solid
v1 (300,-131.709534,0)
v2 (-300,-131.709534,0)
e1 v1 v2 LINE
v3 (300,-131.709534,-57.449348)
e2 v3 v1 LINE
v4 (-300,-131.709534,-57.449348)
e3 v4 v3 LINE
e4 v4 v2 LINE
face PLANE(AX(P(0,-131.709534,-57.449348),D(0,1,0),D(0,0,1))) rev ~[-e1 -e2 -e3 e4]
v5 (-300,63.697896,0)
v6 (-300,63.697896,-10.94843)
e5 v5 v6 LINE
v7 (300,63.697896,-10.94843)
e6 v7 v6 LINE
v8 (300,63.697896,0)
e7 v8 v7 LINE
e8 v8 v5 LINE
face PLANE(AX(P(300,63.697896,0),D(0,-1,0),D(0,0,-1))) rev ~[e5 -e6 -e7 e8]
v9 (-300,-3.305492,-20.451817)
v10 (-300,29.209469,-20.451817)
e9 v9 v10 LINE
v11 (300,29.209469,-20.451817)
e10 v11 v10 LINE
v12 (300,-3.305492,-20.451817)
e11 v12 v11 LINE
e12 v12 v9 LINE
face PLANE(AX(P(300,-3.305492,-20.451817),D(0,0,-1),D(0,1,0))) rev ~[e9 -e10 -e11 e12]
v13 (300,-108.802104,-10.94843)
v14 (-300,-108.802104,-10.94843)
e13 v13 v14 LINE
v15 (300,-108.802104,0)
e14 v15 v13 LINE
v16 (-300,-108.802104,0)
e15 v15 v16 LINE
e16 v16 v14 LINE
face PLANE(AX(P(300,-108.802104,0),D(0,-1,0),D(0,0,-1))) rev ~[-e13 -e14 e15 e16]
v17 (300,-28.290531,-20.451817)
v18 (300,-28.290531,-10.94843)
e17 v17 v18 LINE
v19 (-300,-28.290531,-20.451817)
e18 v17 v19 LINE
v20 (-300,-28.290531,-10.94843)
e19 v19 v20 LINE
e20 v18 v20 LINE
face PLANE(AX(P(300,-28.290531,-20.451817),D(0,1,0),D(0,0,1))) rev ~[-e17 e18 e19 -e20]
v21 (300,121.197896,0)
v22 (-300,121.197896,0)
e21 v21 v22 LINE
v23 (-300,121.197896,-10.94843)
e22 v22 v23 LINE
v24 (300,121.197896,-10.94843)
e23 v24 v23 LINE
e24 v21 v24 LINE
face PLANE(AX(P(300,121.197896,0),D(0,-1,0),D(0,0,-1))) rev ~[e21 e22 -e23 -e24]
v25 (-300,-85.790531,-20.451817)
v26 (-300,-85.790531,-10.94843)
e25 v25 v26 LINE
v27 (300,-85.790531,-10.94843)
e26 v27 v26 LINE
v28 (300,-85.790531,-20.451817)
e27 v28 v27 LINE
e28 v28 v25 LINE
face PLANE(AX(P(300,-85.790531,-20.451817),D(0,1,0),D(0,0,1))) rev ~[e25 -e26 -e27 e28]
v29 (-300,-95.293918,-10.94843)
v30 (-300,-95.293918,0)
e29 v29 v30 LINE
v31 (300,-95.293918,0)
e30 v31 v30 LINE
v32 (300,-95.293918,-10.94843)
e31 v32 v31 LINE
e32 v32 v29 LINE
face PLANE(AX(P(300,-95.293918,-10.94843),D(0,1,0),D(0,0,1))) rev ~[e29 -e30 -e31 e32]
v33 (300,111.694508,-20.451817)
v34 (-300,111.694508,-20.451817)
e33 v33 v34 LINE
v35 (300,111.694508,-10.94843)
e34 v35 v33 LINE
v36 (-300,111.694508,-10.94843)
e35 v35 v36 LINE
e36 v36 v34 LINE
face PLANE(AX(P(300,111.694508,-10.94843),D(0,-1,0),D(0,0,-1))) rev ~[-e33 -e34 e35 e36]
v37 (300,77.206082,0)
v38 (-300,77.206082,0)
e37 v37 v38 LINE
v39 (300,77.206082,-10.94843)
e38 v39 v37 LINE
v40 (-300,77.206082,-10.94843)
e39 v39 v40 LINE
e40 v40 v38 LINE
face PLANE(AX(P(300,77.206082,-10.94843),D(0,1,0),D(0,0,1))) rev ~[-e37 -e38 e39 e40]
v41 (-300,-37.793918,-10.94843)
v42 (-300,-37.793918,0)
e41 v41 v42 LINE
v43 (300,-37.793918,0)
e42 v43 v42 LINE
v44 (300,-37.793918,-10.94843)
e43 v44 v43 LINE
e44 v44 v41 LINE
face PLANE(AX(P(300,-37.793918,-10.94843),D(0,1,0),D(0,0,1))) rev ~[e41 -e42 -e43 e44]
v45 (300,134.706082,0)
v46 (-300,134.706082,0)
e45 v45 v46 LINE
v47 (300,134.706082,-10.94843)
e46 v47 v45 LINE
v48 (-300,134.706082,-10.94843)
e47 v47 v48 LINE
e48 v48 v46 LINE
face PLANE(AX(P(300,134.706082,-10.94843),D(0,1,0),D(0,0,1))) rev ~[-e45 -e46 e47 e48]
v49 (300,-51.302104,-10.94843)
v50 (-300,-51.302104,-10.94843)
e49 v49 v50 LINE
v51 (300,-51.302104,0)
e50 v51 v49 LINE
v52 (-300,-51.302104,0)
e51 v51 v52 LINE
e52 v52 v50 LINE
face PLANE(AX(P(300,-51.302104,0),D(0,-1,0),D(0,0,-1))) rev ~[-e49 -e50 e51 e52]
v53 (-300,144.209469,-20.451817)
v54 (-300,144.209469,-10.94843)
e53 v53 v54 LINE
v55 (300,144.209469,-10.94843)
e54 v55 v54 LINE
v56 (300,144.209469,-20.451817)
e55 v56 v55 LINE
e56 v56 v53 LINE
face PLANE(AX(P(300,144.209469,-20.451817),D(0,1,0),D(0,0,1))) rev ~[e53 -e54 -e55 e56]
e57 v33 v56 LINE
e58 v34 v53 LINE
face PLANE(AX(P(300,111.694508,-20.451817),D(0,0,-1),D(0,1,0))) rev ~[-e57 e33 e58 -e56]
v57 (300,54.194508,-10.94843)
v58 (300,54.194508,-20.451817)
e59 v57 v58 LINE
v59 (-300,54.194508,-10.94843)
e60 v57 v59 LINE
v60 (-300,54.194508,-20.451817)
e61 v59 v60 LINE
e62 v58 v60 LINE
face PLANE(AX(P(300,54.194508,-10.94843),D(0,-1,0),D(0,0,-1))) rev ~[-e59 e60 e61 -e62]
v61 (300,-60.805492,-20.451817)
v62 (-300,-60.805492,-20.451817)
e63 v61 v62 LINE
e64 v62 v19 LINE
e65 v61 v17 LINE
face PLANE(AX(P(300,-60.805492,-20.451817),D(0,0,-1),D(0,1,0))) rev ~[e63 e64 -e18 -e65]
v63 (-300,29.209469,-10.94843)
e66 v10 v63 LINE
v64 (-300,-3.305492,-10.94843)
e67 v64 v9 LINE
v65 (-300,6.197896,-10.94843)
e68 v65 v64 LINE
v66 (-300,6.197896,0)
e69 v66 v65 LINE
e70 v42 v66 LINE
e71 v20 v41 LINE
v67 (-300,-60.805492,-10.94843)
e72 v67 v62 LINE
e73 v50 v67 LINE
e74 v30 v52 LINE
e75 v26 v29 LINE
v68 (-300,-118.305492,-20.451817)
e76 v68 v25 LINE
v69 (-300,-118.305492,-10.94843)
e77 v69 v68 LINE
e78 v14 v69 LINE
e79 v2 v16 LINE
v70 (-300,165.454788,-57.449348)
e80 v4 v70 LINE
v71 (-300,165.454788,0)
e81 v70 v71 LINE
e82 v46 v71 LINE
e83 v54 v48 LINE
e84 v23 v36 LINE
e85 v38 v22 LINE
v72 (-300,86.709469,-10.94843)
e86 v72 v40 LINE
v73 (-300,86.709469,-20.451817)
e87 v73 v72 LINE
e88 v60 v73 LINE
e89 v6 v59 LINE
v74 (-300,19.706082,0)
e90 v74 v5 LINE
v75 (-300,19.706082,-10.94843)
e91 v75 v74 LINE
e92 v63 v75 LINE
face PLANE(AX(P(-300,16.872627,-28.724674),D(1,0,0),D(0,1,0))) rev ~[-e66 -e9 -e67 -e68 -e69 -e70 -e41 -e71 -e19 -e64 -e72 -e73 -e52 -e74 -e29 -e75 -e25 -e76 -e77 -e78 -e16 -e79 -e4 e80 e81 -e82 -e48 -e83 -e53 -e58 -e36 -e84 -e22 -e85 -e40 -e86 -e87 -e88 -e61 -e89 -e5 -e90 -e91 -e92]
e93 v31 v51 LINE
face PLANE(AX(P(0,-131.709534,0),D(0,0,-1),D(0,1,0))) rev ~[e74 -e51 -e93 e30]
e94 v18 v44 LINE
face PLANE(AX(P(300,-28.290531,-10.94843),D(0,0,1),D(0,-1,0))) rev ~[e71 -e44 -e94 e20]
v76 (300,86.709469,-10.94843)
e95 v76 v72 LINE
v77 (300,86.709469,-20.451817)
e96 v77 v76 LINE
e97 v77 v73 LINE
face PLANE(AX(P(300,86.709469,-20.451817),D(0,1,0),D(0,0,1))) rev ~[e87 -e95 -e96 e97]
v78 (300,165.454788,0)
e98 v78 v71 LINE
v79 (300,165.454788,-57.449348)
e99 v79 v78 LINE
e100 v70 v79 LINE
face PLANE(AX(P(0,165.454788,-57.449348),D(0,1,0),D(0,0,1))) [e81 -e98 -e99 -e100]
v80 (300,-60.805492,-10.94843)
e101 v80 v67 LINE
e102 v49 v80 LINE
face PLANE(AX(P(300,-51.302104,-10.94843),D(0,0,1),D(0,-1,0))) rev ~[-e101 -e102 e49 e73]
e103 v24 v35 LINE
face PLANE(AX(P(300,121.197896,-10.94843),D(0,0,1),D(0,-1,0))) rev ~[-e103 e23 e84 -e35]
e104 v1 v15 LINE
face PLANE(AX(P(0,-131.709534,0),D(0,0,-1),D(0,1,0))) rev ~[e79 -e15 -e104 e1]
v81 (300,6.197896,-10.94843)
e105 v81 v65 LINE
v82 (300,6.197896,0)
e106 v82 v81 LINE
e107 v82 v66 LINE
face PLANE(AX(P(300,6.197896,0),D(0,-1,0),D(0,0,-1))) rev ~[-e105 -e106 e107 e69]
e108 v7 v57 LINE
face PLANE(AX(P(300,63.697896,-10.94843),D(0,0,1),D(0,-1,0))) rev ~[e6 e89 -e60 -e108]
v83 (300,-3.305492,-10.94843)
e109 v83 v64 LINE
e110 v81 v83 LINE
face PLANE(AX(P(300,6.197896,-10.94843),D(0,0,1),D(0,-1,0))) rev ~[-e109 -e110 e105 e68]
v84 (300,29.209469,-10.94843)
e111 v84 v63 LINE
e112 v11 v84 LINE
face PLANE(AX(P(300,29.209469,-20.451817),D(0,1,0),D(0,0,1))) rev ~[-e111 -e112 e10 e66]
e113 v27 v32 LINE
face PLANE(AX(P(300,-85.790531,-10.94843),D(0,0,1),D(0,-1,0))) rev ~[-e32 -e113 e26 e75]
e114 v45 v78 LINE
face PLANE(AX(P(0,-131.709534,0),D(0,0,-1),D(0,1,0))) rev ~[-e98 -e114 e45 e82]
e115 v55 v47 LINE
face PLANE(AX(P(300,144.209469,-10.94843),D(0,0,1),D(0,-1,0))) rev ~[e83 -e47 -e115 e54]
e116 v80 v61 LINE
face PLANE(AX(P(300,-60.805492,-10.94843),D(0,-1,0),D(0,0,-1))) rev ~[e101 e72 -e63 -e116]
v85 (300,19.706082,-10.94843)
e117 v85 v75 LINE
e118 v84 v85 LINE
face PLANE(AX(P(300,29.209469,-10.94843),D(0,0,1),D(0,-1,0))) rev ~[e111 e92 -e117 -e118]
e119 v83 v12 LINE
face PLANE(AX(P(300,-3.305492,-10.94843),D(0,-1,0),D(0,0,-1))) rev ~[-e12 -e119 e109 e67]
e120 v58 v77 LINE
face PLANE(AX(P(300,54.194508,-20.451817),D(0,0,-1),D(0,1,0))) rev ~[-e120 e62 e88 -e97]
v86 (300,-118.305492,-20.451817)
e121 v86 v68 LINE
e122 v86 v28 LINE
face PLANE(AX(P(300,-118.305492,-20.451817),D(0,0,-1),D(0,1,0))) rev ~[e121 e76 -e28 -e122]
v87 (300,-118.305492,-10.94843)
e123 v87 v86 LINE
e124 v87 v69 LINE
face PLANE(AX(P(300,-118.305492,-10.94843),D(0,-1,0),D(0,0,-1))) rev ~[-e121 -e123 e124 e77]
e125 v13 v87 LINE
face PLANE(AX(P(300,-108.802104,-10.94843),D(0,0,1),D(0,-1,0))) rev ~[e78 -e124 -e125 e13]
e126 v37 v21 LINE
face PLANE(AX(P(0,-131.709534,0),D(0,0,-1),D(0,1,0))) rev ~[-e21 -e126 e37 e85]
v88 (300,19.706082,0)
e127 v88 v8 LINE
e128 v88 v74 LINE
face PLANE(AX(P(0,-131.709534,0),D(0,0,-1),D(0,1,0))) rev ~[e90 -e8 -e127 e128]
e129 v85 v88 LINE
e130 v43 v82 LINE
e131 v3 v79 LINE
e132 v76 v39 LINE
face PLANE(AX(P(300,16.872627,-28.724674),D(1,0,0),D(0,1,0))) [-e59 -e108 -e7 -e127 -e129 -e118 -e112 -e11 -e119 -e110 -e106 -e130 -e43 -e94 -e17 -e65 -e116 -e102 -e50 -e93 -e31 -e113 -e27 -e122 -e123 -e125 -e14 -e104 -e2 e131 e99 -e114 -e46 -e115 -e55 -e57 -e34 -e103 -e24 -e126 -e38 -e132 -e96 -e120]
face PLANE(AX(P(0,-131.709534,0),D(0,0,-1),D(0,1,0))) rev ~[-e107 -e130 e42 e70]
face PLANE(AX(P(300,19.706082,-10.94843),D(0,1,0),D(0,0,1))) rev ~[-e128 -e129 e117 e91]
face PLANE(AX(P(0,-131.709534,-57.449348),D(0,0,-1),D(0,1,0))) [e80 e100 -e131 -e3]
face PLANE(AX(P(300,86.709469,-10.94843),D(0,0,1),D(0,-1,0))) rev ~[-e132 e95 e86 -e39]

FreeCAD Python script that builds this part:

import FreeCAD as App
import Part
import Sketcher

V = App.Vector
Q = App.Units.Quantity

doc = App.newDocument("Part")
params = doc.addObject("Spreadsheet::Sheet", "Params")
for row, (alias, value) in enumerate([
    ("pad1_length", "600 mm"),
    ("pocket1_length", "600 mm"),
    ("linearpattern_pitch", "57.5 mm"),
], start=1):
    params.set(f"A{row}", alias)
    params.set(f"B{row}", "=" + value)
    params.setAlias(f"B{row}", alias)

body = doc.addObject("PartDesign::Body", "Body")

sketch1 = body.newObject("Sketcher::SketchObject", "Sketch")
sketch1.AttachmentSupport = (doc.getObject("YZ_Plane"), [""])
sketch1.MapMode = "FlatFace"
sketch1.addGeometry([
    Part.LineSegment(V(-131.709534, 0, 0), V(-131.709534, -57.449348, 0)),
    Part.LineSegment(V(-131.709534, -57.449348, 0), V(165.454788, -57.449348, 0)),
    Part.LineSegment(V(165.454788, -57.449348, 0), V(165.454788, 0, 0)),
    Part.LineSegment(V(165.454788, 0, 0), V(-131.709534, 0, 0)),
], False)
sketch1.addConstraint([
    Sketcher.Constraint("Coincident", 0, 2, 1, 1),
    Sketcher.Constraint("Coincident", 1, 2, 2, 1),
    Sketcher.Constraint("Coincident", 2, 2, 3, 1),
    Sketcher.Constraint("Coincident", 3, 2, 0, 1),
    Sketcher.Constraint("Vertical", 0),
    Sketcher.Constraint("Horizontal", 1),
    Sketcher.Constraint("Vertical", 2),
    Sketcher.Constraint("Horizontal", 3),
    Sketcher.Constraint("PointOnObject", 2, 2, -1),
    Sketcher.Constraint("DistanceX", 1, 1, 1, 2, Q("297.164322 mm")),
    Sketcher.Constraint("DistanceY", 0, 2, 0, 1, Q("57.449348 mm")),
    Sketcher.Constraint("DistanceX", -1, 1, 1, 2, Q("165.454788 mm")),
])
pad1 = body.newObject("PartDesign::Pad", "Pad")
pad1.Profile = sketch1
pad1.setExpression("Length", "Params.pad1_length")
pad1.Midplane = True

sketch2 = body.newObject("Sketcher::SketchObject", "Sketch001")
sketch2.AttachmentSupport = (doc.getObject("YZ_Plane"), [""])
sketch2.MapMode = "FlatFace"
sketch2.AttachmentOffset = App.Placement(V(0, 0, 300), App.Rotation())
sketch2.addGeometry([
    Part.LineSegment(V(-108.802104, 0, 0), V(-108.802104, -10.94843, 0)),
    Part.LineSegment(V(-108.802104, -10.94843, 0), V(-118.305492, -10.94843, 0)),
    Part.LineSegment(V(-118.305492, -10.94843, 0), V(-118.305492, -20.451817, 0)),
    Part.LineSegment(V(-118.305492, -20.451817, 0), V(-85.790531, -20.451817, 0)),
    Part.LineSegment(V(-85.790531, -20.451817, 0), V(-85.790531, -10.94843, 0)),
    Part.LineSegment(V(-85.790531, -10.94843, 0), V(-95.293918, -10.94843, 0)),
    Part.LineSegment(V(-95.293918, -10.94843, 0), V(-95.293918, 0, 0)),
    Part.LineSegment(V(-95.293918, 0, 0), V(-108.802104, 0, 0)),
], False)
sketch2.addConstraint([
    Sketcher.Constraint("Coincident", 0, 2, 1, 1),
    Sketcher.Constraint("Coincident", 1, 2, 2, 1),
    Sketcher.Constraint("Coincident", 2, 2, 3, 1),
    Sketcher.Constraint("Coincident", 3, 2, 4, 1),
    Sketcher.Constraint("Coincident", 4, 2, 5, 1),
    Sketcher.Constraint("Coincident", 5, 2, 6, 1),
    Sketcher.Constraint("Coincident", 6, 2, 7, 1),
    Sketcher.Constraint("Coincident", 7, 2, 0, 1),
    Sketcher.Constraint("Vertical", 0),
    Sketcher.Constraint("Horizontal", 1),
    Sketcher.Constraint("Vertical", 2),
    Sketcher.Constraint("Horizontal", 3),
    Sketcher.Constraint("Vertical", 4),
    Sketcher.Constraint("Horizontal", 5),
    Sketcher.Constraint("Vertical", 6),
    Sketcher.Constraint("Horizontal", 7),
    Sketcher.Constraint("PointOnObject", 6, 2, -1),
    Sketcher.Constraint("Horizontal", 1, 2, 4, 2),
    Sketcher.Constraint("Equal", 1, 5),
    Sketcher.Constraint("Equal", 5, 2),
    Sketcher.Constraint("DistanceX", 1, 2, 1, 1, Q("9.503388 mm")),
    Sketcher.Constraint("DistanceX", 3, 1, 3, 2, Q("32.514961 mm")),
    Sketcher.Constraint("DistanceY", 0, 2, 0, 1, Q("10.94843 mm")),
    Sketcher.Constraint("DistanceX", 1, 2, -1, 1, Q("118.305492 mm")),
])
pocket1 = body.newObject("PartDesign::Pocket", "Pocket")
pocket1.Profile = sketch2
pocket1.setExpression("Length", "Params.pocket1_length")
doc.recompute()

linearpattern = body.newObject("PartDesign::LinearPattern", "LinearPattern")
linearpattern.Originals = [pocket1]
linearpattern.Direction = (doc.getObject("Y_Axis"), [""])
linearpattern.Mode = "offset"
linearpattern.setExpression("Offset", "Params.linearpattern_pitch")
linearpattern.Occurrences = 5
body.Tip = linearpattern

doc.recompute()
